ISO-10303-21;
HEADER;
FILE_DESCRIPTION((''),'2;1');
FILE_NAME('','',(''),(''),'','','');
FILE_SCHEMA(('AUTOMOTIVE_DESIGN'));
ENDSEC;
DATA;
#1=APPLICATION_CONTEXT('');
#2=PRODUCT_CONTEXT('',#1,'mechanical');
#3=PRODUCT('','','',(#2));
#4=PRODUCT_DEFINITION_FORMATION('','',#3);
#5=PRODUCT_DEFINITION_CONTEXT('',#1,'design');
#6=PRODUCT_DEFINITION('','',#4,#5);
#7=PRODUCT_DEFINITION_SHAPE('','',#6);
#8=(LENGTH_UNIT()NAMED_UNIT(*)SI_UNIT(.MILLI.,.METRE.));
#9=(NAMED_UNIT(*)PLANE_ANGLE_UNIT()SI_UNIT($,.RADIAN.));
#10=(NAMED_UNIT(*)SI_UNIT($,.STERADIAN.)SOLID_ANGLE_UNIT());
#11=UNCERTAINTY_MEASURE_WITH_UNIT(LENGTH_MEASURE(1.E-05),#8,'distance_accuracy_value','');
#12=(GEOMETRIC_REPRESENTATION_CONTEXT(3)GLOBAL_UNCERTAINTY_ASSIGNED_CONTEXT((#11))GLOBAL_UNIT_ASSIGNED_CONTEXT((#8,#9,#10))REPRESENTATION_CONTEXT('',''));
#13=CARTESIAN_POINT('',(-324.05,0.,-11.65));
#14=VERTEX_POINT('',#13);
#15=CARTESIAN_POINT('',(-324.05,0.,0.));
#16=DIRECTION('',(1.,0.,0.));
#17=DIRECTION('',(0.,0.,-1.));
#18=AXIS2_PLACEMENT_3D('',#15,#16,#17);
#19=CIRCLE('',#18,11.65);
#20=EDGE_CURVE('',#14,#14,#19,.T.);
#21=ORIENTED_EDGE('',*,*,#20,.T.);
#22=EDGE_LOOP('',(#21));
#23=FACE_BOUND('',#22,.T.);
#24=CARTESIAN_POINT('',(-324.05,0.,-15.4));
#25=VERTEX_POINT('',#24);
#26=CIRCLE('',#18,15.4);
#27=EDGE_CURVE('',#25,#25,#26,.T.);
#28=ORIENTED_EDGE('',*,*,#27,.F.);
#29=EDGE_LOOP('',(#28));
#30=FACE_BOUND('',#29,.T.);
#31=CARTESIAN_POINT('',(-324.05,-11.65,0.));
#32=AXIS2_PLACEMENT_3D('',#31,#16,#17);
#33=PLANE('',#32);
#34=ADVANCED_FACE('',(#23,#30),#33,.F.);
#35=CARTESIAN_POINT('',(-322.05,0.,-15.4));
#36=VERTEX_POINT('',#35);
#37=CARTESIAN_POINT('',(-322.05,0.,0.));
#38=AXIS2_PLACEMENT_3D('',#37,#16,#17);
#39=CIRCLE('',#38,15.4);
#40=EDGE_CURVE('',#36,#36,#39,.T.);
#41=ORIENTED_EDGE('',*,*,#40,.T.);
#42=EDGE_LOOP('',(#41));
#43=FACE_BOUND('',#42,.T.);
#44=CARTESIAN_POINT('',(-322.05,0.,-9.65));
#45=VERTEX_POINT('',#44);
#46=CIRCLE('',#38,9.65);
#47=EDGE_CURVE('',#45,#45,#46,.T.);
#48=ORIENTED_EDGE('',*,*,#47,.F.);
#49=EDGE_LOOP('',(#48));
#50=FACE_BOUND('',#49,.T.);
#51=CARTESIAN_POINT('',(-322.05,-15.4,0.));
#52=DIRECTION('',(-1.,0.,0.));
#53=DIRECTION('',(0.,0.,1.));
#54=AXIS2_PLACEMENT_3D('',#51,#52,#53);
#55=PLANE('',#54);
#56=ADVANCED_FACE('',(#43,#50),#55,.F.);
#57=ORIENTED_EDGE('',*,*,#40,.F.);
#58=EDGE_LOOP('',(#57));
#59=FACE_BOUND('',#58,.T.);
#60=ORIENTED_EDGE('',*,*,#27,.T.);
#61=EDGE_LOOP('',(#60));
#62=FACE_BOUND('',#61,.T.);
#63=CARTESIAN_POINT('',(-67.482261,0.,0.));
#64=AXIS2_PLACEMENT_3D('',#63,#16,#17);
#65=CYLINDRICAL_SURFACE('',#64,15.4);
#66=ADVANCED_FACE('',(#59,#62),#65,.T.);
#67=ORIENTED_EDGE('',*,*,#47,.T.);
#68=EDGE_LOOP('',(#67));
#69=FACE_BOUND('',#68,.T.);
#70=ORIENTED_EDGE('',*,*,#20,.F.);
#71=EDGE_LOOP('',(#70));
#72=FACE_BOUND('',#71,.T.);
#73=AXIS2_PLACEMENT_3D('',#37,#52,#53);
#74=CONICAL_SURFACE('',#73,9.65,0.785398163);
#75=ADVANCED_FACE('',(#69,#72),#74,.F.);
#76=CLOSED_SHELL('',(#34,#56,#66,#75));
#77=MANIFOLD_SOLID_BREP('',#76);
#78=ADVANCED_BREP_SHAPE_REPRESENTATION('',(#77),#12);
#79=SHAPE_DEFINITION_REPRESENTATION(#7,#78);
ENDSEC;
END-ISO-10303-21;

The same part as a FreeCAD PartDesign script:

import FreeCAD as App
import Part
import Sketcher

V = App.Vector
Q = App.Units.Quantity


def add_polygon(sketch, points):
    """Adds a closed chain of lines whose ends are joined by coincident constraints."""
    first, n = sketch.GeometryCount, len(points)
    for a, b in zip(points, points[1:] + points[:1]):
        sketch.addGeometry(Part.LineSegment(App.Vector(*a, 0), App.Vector(*b, 0)), False)
    for i in range(n):
        sketch.addConstraint(Sketcher.Constraint("Coincident", first + i, 2, first + (i + 1) % n, 1))

doc = App.newDocument("Part")
body = doc.addObject("PartDesign::Body", "Body")

sketch1 = doc.addObject("Sketcher::SketchObject", "Sketch")
body.addObject(sketch1)
sketch1.AttachmentSupport = (doc.XY_Plane, [""])
sketch1.MapMode = "FlatFace"
add_polygon(sketch1, [(-324.1, -15.4), (-322.1, -15.4), (-322.1, -9.7), (-324.1, -11.7)])
sketch1.addConstraint(Sketcher.Constraint("Horizontal", 0))
sketch1.addConstraint(Sketcher.Constraint("Vertical", 1))
sketch1.addConstraint(Sketcher.Constraint("Vertical", 3))
sketch1.addConstraint(Sketcher.Constraint("DistanceX", 0, 1, 0, 2, Q("2 mm")))
sketch1.addConstraint(Sketcher.Constraint("Angle", 2, Q("-135 deg")))
sketch1.addConstraint(Sketcher.Constraint("DistanceY", 1, 1, 1, 2, Q("5.75 mm")))
sketch1.addConstraint(Sketcher.Constraint("DistanceY", 0, 2, -1, 1, Q("15.4 mm")))
sketch1.addConstraint(Sketcher.Constraint("DistanceX", 0, 2, -1, 1, Q("322.05 mm")))
revolution = doc.addObject("PartDesign::Revolution", "Revolution")
body.addObject(revolution)
revolution.Profile = sketch1
revolution.ReferenceAxis = (sketch1, ["H_Axis"])
revolution.Angle = 360

doc.recompute()
